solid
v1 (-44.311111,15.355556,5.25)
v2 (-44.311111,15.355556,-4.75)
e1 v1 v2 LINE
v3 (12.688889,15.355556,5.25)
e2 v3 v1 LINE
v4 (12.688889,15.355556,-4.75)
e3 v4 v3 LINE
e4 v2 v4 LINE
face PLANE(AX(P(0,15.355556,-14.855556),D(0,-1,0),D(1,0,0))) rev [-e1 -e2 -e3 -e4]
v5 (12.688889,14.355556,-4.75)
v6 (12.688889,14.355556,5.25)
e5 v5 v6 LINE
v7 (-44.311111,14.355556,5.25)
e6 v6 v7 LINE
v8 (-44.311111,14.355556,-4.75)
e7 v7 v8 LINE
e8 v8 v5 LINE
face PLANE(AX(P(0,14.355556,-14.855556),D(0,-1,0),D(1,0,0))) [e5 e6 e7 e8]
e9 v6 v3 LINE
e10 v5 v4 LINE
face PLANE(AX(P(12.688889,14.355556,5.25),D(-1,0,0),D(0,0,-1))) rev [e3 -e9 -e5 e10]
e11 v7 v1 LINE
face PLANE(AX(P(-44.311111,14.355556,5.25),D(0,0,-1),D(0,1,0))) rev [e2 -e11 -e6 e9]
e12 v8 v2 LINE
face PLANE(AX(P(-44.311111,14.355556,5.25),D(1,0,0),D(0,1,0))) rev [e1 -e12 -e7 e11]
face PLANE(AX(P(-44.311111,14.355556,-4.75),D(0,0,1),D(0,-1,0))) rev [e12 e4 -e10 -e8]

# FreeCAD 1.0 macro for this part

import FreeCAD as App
import Part
import Sketcher
Q = App.Units.Quantity

doc = App.newDocument("Part")
params = doc.addObject("Spreadsheet::Sheet", "Params")
for row, (alias, value) in enumerate([
    ("sketch1_width", "57 mm"),
    ("sketch1_height", "10 mm"),
    ("pad1_length", "1 mm"),
], start=1):
    params.set(f"A{row}", alias)
    params.set(f"B{row}", "=" + value)
    params.setAlias(f"B{row}", alias)

body = doc.addObject("PartDesign::Body", "Body")

# Sketch on XY plane
sketch1 = body.newObject("Sketcher::SketchObject", "Sketch")
sketch1.AttachmentSupport = (doc.getObject("XY_Plane"), [""])
sketch1.MapMode = "FlatFace"
sketch1.addGeometry(Part.LineSegment(App.Vector(-44.311111, 20.105556, 0), App.Vector(-44.311111, 10.105556, 0)), False)
sketch1.addGeometry(Part.LineSegment(App.Vector(-44.311111, 10.105556, 0), App.Vector(12.688889, 10.105556, 0)), False)
sketch1.addGeometry(Part.LineSegment(App.Vector(12.688889, 10.105556, 0), App.Vector(12.688889, 20.105556, 0)), False)
sketch1.addGeometry(Part.LineSegment(App.Vector(12.688889, 20.105556, 0), App.Vector(-44.311111, 20.105556, 0)), False)
sketch1.addConstraint(Sketcher.Constraint("Coincident", 0, 2, 1, 1))
sketch1.addConstraint(Sketcher.Constraint("Coincident", 1, 2, 2, 1))
sketch1.addConstraint(Sketcher.Constraint("Coincident", 2, 2, 3, 1))
sketch1.addConstraint(Sketcher.Constraint("Coincident", 3, 2, 0, 1))
sketch1.addConstraint(Sketcher.Constraint("Vertical", 0))
sketch1.addConstraint(Sketcher.Constraint("Horizontal", 1))
sketch1.addConstraint(Sketcher.Constraint("Vertical", 2))
sketch1.addConstraint(Sketcher.Constraint("Horizontal", 3))
sketch1.addConstraint(Sketcher.Constraint("DistanceX", 1, 1, 1, 2, Q("57 mm")))
sketch1.addConstraint(Sketcher.Constraint("DistanceY", 0, 2, 0, 1, Q("10 mm")))
sketch1.addConstraint(Sketcher.Constraint("DistanceX", 0, 2, -1, 1, Q("44.311111 mm")))
sketch1.addConstraint(Sketcher.Constraint("DistanceY", -1, 1, 0, 2, Q("10.105556 mm")))
sketch1.setExpression("Constraints[8]", "Params.sketch1_width")
sketch1.setExpression("Constraints[9]", "Params.sketch1_height")
pad1 = body.newObject("PartDesign::Pad", "Pad")
pad1.Profile = sketch1
pad1.setExpression("Length", "Params.pad1_length")
body2 = doc.addObject("PartDesign::Body", "Body001")
doc.recompute()

body.Placement = App.Placement(App.Vector(0, 15.355556, -14.855556), App.Rotation(App.Vector(1, 0, 0), 90))
boolean = body2.newObject("PartDesign::Boolean", "Boolean")
boolean.Type = "Fuse"
boolean.addObjects([body])

doc.recompute()
